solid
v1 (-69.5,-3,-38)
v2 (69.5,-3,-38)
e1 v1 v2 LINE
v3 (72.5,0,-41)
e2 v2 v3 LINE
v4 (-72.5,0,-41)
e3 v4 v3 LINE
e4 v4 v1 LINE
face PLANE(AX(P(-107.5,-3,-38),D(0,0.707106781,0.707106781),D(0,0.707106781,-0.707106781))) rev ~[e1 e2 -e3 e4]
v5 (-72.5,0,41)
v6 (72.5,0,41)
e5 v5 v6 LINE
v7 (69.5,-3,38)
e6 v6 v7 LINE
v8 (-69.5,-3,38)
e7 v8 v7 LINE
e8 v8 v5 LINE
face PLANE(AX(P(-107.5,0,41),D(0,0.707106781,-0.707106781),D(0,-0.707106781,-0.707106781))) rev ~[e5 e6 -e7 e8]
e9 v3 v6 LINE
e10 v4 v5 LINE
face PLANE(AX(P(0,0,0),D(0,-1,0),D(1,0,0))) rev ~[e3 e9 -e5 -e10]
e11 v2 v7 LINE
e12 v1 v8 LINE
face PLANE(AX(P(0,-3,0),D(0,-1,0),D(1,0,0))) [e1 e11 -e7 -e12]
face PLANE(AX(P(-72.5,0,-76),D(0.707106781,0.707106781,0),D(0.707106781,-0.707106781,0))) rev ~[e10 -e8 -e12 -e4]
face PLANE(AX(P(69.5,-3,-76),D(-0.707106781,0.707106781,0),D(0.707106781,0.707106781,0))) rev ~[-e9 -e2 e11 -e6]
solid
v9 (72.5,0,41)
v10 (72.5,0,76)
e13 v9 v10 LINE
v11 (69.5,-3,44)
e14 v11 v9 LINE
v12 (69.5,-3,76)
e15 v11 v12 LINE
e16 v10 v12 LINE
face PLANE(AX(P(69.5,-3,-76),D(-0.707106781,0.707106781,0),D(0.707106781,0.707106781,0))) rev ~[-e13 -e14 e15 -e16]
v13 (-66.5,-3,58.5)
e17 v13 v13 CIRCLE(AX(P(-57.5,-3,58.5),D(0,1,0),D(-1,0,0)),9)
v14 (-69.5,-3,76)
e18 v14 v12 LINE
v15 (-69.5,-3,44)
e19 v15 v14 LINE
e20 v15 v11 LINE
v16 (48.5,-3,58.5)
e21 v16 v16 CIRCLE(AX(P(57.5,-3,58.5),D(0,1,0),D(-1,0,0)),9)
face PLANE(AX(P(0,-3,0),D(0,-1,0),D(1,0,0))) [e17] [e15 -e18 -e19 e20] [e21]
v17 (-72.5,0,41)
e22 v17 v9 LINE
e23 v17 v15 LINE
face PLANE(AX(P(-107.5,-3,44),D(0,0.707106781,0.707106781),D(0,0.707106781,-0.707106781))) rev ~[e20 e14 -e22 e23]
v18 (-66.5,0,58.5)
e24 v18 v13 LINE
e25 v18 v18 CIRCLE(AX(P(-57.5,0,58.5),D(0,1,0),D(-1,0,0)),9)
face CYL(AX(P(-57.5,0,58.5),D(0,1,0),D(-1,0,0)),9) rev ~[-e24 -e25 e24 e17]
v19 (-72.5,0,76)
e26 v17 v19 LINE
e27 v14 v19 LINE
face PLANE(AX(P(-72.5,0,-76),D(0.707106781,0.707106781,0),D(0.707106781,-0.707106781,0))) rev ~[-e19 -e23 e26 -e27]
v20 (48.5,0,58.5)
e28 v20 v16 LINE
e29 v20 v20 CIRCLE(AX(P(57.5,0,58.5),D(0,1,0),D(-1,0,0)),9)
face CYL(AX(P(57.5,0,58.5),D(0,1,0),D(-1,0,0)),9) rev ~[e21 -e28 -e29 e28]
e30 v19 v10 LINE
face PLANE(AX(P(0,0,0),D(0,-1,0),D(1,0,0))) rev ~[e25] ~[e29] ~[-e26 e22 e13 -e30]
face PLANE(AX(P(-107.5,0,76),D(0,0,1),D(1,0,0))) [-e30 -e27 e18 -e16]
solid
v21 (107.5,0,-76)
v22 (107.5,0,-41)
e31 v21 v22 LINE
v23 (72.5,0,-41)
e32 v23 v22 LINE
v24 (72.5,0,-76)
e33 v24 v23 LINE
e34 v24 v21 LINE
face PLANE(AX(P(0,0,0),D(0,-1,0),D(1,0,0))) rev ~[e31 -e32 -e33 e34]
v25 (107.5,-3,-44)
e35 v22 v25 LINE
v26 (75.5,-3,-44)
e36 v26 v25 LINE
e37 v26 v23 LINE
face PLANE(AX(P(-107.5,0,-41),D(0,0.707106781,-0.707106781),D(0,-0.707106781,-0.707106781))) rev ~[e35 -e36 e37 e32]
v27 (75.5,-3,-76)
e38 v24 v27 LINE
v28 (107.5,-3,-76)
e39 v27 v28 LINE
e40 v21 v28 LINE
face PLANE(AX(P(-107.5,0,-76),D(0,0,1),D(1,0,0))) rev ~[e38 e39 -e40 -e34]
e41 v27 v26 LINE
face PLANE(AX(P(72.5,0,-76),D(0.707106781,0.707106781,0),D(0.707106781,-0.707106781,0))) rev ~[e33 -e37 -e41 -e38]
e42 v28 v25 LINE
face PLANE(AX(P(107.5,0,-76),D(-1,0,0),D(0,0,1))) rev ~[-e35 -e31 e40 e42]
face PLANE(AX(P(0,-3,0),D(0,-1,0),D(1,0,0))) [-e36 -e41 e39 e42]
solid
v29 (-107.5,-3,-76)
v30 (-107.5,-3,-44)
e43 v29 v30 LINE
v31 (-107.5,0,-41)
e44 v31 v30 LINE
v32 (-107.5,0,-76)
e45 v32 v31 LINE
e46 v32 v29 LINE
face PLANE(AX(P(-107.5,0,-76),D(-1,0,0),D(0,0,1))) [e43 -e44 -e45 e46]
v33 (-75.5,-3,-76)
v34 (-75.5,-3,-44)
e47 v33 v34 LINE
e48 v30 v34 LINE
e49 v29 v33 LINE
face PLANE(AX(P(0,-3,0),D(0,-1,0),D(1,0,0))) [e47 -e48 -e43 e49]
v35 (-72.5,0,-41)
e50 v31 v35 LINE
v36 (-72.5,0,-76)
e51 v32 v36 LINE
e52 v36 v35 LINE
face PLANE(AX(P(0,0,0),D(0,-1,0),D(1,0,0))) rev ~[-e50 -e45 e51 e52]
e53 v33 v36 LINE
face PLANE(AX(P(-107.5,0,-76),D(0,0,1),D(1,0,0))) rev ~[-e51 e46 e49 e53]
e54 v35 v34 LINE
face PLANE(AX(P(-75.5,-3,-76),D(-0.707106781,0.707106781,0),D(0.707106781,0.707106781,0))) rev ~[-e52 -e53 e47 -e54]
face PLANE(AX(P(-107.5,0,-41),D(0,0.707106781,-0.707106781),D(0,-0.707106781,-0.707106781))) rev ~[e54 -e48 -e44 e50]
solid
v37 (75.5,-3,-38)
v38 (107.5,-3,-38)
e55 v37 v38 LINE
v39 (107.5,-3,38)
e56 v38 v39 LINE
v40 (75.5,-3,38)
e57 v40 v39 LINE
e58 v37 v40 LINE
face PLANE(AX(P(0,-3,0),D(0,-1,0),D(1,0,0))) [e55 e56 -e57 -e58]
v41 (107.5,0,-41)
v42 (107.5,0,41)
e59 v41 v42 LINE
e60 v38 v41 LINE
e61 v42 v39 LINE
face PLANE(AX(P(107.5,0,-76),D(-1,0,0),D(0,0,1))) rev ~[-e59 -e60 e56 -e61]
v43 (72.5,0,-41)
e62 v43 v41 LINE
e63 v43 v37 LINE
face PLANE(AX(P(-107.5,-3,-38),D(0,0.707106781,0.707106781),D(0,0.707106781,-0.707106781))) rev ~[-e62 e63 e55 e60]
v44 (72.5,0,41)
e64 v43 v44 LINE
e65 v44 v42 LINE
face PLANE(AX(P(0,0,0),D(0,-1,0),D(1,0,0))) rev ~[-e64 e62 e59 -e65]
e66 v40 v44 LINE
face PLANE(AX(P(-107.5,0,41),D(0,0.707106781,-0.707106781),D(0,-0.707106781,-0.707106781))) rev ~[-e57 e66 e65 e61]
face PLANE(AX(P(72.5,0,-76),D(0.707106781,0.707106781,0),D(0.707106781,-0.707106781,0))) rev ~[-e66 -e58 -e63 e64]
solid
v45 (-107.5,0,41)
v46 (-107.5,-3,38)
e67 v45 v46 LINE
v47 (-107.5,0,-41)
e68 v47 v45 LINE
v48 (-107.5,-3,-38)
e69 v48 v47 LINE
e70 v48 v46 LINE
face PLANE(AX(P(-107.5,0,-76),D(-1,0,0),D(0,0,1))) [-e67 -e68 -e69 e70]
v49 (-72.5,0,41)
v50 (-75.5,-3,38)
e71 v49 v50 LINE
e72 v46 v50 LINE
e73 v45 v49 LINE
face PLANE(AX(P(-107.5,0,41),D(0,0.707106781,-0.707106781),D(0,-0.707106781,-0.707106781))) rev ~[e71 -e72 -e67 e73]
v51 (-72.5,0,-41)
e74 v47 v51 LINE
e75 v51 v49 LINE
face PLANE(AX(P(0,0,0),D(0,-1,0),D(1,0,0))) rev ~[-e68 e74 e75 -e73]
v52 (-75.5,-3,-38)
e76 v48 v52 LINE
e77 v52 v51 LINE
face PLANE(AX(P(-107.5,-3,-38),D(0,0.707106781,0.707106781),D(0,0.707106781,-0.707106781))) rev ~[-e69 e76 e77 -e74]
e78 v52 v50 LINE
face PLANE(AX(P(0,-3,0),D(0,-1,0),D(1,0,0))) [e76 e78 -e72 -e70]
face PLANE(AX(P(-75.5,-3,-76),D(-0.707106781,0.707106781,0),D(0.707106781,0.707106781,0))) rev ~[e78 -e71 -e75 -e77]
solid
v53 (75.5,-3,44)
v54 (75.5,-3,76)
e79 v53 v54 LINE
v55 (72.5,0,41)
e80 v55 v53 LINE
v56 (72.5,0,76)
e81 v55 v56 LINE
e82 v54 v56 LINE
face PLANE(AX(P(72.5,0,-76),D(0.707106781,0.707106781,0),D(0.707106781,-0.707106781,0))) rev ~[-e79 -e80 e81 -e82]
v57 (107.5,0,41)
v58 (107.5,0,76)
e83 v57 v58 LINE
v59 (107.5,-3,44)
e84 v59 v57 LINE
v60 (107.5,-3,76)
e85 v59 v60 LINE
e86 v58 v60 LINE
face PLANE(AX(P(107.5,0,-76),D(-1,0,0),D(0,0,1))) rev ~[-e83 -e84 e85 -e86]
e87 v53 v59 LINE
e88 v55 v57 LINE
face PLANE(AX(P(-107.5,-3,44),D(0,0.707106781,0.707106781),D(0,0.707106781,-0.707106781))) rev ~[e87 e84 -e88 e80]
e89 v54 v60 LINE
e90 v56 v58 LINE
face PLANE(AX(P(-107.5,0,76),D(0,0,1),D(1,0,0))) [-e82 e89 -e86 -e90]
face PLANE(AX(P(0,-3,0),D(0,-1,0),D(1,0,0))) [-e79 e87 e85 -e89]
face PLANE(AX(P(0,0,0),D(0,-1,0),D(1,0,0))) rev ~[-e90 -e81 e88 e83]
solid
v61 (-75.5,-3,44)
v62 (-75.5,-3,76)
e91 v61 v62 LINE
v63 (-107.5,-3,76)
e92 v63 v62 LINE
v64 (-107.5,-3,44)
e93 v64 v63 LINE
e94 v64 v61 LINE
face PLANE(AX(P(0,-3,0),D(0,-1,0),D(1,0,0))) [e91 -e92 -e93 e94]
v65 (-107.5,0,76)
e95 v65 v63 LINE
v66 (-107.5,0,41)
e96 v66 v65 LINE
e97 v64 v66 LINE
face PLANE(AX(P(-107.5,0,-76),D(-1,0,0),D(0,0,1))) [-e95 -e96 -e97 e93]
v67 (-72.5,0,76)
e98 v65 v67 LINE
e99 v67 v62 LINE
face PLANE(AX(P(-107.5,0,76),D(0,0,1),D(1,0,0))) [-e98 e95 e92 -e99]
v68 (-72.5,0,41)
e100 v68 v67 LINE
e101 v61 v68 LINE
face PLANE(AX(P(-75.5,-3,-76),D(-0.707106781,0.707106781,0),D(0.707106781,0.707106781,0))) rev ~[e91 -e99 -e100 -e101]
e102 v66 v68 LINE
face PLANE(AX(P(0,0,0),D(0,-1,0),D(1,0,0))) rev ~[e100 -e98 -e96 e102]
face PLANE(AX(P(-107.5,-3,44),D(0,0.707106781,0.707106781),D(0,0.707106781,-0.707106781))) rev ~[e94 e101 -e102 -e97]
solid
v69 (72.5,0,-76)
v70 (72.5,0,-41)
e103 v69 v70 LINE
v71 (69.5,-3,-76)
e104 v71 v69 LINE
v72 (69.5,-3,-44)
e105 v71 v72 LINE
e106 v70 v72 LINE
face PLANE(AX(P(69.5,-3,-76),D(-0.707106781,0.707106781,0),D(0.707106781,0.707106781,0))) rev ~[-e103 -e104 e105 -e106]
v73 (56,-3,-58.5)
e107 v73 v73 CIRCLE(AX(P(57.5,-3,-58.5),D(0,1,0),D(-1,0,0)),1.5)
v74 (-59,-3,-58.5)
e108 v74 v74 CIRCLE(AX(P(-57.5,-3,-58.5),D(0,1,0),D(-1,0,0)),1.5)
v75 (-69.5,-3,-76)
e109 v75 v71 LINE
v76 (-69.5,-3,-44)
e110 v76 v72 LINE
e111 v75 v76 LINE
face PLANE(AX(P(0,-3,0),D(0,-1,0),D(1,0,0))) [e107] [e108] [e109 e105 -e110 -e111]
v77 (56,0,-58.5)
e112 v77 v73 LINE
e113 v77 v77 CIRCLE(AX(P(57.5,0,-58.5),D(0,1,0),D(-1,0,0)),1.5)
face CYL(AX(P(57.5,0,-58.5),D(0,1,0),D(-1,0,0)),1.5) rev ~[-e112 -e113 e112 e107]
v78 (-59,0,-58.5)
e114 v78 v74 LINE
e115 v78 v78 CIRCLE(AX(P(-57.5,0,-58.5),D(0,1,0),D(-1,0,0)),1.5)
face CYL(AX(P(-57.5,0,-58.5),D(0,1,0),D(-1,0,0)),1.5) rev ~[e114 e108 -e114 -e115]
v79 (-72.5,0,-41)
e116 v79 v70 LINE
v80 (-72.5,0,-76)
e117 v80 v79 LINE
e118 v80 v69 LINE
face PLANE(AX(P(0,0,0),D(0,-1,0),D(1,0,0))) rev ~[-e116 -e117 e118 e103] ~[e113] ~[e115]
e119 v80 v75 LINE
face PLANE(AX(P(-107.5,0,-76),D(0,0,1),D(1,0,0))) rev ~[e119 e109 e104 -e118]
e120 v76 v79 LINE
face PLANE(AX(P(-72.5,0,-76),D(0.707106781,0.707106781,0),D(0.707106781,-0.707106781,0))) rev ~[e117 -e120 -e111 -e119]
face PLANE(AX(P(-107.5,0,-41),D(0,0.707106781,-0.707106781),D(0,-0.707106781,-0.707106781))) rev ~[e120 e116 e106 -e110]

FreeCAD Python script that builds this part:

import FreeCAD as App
import Part
import Sketcher
Q = App.Units.Quantity


def add_polygon(sketch, points):
    """Adds a closed chain of lines whose ends are joined by coincident constraints."""
    first, n = sketch.GeometryCount, len(points)
    for a, b in zip(points, points[1:] + points[:1]):
        sketch.addGeometry(Part.LineSegment(App.Vector(*a, 0), App.Vector(*b, 0)), False)
    for i in range(n):
        sketch.addConstraint(Sketcher.Constraint("Coincident", first + i, 2, first + (i + 1) % n, 1))

doc = App.newDocument("Part")
body = doc.addObject("PartDesign::Body", "Body")
body.AllowCompound = True

# Sketch on XZ plane
sketch1 = body.newObject("Sketcher::SketchObject", "Sketch")
sketch1.AttachmentSupport = (doc.getObject("XZ_Plane"), [""])
sketch1.MapMode = "FlatFace"
add_polygon(sketch1, [(-108, 76), (-108, -76), (108, -76), (108, 76)])  # lines 0-3
sketch1.addConstraint([
    Sketcher.Constraint("Vertical", 0),
    Sketcher.Constraint("Horizontal", 1),
    Sketcher.Constraint("Vertical", 2),
    Sketcher.Constraint("Horizontal", 3),
    Sketcher.Constraint("Symmetric", 0, 2, 2, 2, -1, 1),
    Sketcher.Constraint("DistanceX", 1, 1, 1, 2, Q("215 mm")),
    Sketcher.Constraint("DistanceY", 0, 2, 0, 1, Q("152 mm")),
])
pad1 = body.newObject("PartDesign::Pad", "Pad")
pad1.Profile = sketch1
pad1.Length = 3

# Sketch on XY plane
sketch2 = body.newObject("Sketcher::SketchObject", "Sketch001")
sketch2.AttachmentSupport = (doc.getObject("XY_Plane"), [""])
sketch2.MapMode = "FlatFace"
sketch2.AttachmentOffset = App.Placement(App.Vector(0, 0, -76), App.Rotation())
add_polygon(sketch2, [(-75.5, -3), (-72.5, 0), (-69.5, -3)])  # lines 0-2
add_polygon(sketch2, [(69.5, -3), (72.5, 0), (75.5, -3)])  # lines 3-5
sketch2.addConstraint([
    Sketcher.Constraint("Horizontal", 2),
    Sketcher.Constraint("Horizontal", 5),
    Sketcher.Constraint("Symmetric", 0, 2, 3, 2, -1, 1),
    Sketcher.Constraint("Symmetric", 2, 2, 4, 2, -2),
    Sketcher.Constraint("PointOnObject", 0, 2, -1),
    Sketcher.Constraint("Perpendicular", 0, 1),
    Sketcher.Constraint("Perpendicular", 1, 3),
    Sketcher.Constraint("Perpendicular", 3, 4),
    Sketcher.Constraint("DistanceX", 2, 2, 2, 1, Q("6 mm")),
    Sketcher.Constraint("DistanceX", 1, 2, 3, 2, Q("142 mm")),
])
pocket1 = body.newObject("PartDesign::Pocket", "Pocket")
pocket1.Profile = sketch2
pocket1.Length = 174.7
pocket1.Reversed = True

# Sketch on YZ plane
sketch3 = body.newObject("Sketcher::SketchObject", "Sketch002")
sketch3.AttachmentSupport = (doc.getObject("YZ_Plane"), [""])
sketch3.MapMode = "FlatFace"
sketch3.AttachmentOffset = App.Placement(App.Vector(0, 0, -107.5), App.Rotation())
add_polygon(sketch3, [(-3, 44), (0, 41), (-3, 38)])  # lines 0-2
add_polygon(sketch3, [(-3, -38), (0, -41), (-3, -44)])  # lines 3-5
sketch3.addConstraint([
    Sketcher.Constraint("Vertical", 2),
    Sketcher.Constraint("Vertical", 5),
    Sketcher.Constraint("Symmetric", 0, 2, 3, 2, -1, 1),
    Sketcher.Constraint("Symmetric", 2, 2, 4, 2, -1),
    Sketcher.Constraint("PointOnObject", 0, 2, -2),
    Sketcher.Constraint("Perpendicular", 0, 1),
    Sketcher.Constraint("Perpendicular", 1, 3),
    Sketcher.Constraint("Perpendicular", 3, 4),
    Sketcher.Constraint("DistanceY", 2, 1, 2, 2, Q("6 mm")),
    Sketcher.Constraint("DistanceY", -1, 1, 0, 2, Q("41 mm")),
])
pocket2 = body.newObject("PartDesign::Pocket", "Pocket001")
pocket2.Profile = sketch3
pocket2.Length = 226.7
pocket2.Reversed = True

# Sketch on XZ plane
sketch4 = body.newObject("Sketcher::SketchObject", "Sketch003")
sketch4.AttachmentSupport = (doc.getObject("XZ_Plane"), [""])
sketch4.MapMode = "FlatFace"
sketch4.addGeometry([
    Part.Circle(App.Vector(57.5, 58.5, 0), App.Vector(0, 0, 1), 9),
    Part.Circle(App.Vector(-57.5, 58.5, 0), App.Vector(0, 0, 1), 9),
    Part.Circle(App.Vector(57.5, -58.5, 0), App.Vector(0, 0, 1), 1.5),
    Part.Circle(App.Vector(-57.5, -58.5, 0), App.Vector(0, 0, 1), 1.5),
], False)
sketch4.addConstraint([
    Sketcher.Constraint("Equal", 0, 1),
    Sketcher.Constraint("Equal", 2, 3),
    Sketcher.Constraint("Symmetric", 1, 3, 2, 3, -1, 1),
    Sketcher.Constraint("Symmetric", 0, 3, 3, 3, -1, 1),
    Sketcher.Constraint("Symmetric", 0, 3, 1, 3, -2),
    Sketcher.Constraint("Diameter", 0, Q("18 mm")),
    Sketcher.Constraint("Diameter", 2, Q("3 mm")),
    Sketcher.Constraint("DistanceX", 1, 3, 0, 3, Q("115 mm")),
    Sketcher.Constraint("DistanceY", 2, 3, 0, 3, Q("117 mm")),
])
pocket3 = body.newObject("PartDesign::Pocket", "Pocket002")
pocket3.Profile = sketch4
pocket3.Length = 25
pocket3.Reversed = True

doc.recompute()
